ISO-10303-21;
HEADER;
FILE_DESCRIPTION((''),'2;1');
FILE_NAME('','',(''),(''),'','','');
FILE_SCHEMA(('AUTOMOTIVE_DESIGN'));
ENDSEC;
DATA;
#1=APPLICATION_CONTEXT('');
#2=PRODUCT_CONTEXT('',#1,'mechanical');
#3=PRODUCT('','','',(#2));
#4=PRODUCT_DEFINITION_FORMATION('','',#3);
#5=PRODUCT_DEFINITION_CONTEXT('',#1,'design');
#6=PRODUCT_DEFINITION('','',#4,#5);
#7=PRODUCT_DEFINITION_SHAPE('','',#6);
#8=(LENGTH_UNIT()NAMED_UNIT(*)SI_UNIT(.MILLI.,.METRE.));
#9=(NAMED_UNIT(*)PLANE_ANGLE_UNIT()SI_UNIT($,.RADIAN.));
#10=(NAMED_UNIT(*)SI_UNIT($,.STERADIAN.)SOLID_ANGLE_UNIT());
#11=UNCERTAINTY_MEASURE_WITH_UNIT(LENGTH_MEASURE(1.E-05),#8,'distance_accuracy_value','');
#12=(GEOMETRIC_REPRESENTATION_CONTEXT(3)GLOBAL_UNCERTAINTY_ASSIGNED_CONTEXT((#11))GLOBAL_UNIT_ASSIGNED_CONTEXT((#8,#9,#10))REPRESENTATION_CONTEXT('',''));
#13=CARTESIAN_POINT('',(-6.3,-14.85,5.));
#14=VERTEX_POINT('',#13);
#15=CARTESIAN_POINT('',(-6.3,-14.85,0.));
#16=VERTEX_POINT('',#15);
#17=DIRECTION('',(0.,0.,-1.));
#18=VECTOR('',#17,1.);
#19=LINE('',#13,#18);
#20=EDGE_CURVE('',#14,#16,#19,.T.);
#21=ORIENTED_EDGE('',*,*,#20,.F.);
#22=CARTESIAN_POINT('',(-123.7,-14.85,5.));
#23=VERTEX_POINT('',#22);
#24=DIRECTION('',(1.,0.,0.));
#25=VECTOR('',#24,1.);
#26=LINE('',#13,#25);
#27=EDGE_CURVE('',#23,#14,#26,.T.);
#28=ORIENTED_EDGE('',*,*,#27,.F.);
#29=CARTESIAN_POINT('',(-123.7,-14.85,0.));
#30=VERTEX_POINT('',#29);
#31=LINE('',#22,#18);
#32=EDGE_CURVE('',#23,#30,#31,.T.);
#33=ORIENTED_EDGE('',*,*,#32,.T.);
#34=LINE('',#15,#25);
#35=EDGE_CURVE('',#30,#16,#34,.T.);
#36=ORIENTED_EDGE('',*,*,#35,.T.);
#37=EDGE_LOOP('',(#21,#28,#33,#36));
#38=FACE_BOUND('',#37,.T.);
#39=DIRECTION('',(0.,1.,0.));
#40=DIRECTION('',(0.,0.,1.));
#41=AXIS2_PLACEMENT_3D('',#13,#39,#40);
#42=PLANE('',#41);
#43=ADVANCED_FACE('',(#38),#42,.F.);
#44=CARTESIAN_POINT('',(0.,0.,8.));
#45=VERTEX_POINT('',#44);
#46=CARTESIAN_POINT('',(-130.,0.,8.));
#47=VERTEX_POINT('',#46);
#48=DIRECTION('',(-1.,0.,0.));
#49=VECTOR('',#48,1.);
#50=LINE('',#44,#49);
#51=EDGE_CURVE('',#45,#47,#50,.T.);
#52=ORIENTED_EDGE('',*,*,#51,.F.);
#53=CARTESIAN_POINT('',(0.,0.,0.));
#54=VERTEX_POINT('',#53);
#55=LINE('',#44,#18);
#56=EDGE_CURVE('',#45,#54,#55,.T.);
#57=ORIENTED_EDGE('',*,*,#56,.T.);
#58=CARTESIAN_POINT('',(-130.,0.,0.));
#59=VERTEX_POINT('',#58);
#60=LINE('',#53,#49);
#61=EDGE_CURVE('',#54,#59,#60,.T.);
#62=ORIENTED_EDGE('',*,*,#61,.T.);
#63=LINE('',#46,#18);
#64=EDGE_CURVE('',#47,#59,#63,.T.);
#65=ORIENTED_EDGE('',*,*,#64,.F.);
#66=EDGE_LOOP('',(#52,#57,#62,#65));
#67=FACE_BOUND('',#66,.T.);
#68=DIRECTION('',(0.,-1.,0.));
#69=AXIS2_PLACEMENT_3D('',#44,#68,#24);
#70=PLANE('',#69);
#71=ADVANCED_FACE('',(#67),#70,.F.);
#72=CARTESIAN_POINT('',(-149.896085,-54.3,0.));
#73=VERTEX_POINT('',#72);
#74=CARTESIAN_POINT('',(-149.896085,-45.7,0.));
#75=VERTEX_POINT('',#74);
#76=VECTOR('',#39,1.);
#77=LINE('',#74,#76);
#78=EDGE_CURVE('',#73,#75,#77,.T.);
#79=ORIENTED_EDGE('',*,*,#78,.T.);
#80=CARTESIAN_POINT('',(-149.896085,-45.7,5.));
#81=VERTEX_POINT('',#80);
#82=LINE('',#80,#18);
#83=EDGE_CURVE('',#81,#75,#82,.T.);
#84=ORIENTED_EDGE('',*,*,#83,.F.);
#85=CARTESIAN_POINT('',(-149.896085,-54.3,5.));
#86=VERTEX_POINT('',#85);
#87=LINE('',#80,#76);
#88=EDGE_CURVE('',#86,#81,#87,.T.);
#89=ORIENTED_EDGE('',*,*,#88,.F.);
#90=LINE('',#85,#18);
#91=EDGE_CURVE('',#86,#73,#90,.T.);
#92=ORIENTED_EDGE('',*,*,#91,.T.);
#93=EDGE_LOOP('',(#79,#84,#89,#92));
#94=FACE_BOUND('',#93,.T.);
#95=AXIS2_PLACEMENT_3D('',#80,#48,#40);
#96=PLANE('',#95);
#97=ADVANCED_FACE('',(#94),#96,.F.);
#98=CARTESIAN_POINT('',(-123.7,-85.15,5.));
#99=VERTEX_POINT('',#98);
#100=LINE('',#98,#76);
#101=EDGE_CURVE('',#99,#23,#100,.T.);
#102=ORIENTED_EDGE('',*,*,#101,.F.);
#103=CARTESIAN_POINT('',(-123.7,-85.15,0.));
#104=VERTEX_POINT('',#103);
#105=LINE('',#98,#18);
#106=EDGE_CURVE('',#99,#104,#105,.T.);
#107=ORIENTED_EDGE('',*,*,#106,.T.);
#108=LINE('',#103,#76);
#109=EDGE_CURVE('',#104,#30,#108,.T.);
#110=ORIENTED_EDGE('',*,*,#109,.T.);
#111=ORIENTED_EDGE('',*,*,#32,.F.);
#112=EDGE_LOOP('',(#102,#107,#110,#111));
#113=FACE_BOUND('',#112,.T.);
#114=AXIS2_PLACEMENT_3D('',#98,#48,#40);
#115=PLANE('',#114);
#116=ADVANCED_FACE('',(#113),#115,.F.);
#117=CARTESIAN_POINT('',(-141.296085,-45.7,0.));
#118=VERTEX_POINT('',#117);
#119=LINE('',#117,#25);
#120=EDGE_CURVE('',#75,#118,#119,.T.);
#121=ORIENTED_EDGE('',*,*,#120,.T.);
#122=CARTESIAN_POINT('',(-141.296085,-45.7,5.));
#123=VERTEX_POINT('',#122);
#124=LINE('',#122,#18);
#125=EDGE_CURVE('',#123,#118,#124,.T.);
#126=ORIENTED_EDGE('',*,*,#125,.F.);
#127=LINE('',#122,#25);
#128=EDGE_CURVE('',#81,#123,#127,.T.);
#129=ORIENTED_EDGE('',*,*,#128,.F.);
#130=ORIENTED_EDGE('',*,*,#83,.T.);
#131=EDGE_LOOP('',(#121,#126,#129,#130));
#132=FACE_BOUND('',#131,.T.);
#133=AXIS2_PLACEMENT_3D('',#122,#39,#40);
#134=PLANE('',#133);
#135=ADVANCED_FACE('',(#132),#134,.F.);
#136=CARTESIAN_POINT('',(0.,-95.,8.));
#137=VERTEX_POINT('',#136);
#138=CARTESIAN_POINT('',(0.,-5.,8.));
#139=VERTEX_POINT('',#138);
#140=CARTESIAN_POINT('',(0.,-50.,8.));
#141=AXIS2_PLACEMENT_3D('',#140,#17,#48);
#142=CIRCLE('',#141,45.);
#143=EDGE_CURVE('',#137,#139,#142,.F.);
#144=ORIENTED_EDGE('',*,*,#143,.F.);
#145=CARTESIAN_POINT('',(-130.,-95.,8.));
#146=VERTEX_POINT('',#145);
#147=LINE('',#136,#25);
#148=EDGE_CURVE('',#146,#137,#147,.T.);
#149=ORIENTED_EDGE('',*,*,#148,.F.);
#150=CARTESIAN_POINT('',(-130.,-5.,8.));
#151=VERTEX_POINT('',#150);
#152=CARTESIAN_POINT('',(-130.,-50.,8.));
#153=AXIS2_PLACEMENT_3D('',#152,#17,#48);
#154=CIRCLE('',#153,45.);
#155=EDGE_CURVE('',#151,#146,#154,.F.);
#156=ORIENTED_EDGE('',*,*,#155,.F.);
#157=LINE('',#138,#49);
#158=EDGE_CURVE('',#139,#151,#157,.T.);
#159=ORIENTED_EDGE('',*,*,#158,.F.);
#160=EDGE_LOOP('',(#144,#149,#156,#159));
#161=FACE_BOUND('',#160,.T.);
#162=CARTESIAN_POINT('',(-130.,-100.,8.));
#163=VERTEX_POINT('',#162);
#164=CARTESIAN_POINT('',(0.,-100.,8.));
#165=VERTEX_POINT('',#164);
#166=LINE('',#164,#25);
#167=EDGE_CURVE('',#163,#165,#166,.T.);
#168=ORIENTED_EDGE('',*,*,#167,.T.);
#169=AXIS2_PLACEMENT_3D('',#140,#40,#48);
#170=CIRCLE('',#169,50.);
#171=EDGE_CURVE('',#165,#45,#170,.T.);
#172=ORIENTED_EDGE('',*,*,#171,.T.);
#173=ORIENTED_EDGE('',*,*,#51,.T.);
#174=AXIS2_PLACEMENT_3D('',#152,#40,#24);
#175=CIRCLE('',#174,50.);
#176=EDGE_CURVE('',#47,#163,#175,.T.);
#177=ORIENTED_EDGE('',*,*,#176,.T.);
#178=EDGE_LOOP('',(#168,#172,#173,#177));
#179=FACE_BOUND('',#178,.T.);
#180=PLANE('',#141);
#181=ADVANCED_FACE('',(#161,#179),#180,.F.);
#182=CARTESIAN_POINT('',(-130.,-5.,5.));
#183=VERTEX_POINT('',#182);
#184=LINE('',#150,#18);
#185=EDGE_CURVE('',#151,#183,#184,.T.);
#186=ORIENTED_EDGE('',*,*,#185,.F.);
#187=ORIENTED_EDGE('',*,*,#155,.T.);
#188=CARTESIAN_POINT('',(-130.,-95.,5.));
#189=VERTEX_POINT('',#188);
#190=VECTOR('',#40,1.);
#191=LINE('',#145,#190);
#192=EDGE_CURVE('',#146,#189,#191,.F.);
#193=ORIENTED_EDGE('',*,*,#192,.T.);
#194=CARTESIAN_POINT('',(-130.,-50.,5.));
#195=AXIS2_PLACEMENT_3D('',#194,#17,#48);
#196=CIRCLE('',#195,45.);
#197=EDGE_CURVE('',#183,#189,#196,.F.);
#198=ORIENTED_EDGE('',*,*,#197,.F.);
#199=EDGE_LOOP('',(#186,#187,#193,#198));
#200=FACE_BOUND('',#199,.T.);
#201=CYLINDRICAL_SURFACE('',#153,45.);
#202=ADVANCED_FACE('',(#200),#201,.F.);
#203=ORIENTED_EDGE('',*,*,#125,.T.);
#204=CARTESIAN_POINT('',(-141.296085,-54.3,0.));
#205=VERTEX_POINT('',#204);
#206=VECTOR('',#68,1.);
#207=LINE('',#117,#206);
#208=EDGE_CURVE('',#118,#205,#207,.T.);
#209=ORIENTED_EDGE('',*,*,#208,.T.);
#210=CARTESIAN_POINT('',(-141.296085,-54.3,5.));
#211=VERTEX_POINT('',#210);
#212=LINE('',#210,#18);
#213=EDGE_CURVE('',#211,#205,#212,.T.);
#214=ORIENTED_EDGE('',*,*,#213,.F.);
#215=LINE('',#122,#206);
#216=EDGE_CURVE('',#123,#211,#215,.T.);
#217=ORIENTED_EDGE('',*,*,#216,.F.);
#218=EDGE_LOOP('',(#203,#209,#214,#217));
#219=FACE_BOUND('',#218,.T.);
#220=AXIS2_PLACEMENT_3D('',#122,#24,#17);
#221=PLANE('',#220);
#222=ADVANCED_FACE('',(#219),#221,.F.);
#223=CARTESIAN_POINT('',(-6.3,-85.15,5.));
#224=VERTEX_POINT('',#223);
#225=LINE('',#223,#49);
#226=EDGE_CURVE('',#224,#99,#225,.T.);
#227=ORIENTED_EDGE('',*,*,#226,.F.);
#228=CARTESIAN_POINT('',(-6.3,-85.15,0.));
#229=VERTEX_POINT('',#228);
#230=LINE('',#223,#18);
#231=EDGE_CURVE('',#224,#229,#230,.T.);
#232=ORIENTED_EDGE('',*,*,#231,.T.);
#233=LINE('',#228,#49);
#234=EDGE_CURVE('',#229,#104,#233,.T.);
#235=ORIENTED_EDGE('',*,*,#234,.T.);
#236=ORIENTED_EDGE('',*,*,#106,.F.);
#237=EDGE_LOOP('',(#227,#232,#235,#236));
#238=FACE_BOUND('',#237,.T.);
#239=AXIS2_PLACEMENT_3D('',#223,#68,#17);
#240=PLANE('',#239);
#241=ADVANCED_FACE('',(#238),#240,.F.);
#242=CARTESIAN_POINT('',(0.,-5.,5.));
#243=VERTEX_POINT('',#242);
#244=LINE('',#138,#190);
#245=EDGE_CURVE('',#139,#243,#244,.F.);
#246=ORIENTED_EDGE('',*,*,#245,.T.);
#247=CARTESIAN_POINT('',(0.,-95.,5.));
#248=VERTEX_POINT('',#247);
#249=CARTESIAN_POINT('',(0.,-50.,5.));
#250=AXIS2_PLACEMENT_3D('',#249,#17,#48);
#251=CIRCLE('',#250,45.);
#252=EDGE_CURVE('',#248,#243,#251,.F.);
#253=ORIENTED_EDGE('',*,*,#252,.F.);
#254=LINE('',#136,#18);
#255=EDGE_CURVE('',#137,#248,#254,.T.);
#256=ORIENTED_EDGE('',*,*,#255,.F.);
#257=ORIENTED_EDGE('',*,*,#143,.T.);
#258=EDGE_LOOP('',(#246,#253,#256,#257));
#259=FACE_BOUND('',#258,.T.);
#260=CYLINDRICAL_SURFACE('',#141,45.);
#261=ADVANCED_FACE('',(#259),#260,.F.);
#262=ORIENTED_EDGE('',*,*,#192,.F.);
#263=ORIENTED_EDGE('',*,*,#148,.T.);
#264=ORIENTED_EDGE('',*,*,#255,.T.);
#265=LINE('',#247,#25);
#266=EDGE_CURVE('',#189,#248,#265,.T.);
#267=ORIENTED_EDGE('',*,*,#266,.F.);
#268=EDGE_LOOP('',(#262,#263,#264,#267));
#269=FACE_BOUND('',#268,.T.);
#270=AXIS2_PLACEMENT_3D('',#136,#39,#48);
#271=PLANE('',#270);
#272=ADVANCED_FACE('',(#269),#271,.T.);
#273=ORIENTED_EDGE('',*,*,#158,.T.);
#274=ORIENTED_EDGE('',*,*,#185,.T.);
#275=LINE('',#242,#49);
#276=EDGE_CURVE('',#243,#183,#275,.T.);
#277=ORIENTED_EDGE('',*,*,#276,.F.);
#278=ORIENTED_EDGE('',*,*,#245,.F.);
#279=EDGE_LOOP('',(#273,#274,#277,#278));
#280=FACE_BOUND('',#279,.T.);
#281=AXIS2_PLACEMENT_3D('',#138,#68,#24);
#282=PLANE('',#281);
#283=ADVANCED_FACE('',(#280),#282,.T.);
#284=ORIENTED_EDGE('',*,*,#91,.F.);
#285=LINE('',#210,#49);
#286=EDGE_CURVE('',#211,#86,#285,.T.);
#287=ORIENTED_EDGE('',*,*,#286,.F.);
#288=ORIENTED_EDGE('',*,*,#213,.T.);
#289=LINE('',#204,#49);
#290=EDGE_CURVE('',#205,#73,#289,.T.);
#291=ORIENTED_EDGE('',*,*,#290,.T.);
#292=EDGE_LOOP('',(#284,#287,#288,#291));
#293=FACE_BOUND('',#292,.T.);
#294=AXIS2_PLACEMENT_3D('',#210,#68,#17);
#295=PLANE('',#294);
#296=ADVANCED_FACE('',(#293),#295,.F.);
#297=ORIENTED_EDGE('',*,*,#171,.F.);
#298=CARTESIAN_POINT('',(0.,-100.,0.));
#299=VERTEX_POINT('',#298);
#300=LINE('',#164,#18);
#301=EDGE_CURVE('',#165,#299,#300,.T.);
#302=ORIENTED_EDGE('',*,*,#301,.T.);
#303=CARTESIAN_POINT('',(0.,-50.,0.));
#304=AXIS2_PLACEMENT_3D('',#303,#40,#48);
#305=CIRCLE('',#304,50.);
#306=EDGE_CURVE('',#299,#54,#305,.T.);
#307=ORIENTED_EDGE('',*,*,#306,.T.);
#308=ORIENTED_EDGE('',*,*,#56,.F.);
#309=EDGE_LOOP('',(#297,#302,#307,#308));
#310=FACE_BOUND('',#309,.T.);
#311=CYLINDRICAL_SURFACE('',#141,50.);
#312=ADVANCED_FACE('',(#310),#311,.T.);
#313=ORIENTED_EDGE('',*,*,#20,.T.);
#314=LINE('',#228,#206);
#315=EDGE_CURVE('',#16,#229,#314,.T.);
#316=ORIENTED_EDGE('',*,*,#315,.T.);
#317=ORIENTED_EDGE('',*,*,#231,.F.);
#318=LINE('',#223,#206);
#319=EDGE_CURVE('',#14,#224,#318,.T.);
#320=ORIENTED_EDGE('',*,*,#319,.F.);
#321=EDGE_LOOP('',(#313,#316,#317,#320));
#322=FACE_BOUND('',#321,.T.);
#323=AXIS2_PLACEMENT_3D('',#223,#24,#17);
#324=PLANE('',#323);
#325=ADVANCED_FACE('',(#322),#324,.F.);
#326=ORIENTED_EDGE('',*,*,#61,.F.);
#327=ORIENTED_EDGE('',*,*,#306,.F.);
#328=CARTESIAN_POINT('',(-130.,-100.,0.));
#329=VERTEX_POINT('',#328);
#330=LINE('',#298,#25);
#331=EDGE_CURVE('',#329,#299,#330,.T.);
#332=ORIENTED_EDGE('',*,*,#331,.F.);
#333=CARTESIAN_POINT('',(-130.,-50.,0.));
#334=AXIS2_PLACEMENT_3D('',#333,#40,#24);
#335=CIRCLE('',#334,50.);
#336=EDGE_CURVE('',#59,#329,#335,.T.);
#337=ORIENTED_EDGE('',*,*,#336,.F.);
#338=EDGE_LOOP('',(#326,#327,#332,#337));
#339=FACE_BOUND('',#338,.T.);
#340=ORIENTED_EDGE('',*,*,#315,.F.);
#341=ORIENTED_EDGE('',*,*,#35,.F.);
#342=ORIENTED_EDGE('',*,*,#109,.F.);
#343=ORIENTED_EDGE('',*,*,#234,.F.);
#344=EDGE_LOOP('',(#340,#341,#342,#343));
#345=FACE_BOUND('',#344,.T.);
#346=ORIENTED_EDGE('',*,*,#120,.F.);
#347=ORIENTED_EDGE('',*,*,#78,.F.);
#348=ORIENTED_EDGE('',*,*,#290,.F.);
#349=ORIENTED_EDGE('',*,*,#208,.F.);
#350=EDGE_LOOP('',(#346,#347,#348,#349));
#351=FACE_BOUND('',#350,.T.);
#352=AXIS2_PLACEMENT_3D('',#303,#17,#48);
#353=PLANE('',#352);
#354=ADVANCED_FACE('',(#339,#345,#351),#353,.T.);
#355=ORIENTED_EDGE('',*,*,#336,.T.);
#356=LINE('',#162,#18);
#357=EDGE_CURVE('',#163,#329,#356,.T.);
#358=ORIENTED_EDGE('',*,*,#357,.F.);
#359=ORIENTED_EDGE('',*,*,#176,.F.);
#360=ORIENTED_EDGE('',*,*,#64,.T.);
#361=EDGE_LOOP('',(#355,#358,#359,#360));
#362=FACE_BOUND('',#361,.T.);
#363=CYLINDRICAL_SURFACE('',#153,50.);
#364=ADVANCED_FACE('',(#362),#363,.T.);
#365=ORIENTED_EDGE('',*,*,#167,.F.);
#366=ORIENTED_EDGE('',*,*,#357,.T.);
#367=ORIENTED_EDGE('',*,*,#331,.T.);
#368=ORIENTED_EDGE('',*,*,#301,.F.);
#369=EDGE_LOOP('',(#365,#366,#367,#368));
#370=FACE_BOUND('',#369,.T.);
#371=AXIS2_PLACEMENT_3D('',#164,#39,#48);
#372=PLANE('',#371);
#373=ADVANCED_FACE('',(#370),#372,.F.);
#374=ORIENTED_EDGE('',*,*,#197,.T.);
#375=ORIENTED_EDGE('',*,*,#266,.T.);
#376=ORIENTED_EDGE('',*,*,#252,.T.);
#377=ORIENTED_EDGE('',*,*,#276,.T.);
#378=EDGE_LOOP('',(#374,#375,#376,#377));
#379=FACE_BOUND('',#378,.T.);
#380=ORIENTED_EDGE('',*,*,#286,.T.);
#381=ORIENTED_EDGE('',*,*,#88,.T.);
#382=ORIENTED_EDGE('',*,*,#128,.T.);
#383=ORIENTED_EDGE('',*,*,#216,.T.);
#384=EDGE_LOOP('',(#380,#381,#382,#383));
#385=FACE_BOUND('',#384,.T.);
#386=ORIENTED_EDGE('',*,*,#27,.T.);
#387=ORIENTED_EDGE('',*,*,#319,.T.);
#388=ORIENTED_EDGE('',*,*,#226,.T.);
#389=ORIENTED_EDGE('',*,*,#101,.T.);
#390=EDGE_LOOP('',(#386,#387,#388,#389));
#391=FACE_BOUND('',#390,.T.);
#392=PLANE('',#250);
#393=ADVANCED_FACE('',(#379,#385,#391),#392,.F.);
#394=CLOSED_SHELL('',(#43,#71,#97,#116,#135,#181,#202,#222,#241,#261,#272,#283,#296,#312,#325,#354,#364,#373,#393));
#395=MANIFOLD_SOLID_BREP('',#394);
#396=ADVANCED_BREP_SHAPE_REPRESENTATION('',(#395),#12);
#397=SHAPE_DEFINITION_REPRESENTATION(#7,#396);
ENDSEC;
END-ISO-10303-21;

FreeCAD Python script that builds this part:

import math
import FreeCAD as App
import Part
import Sketcher
from FreeCAD import Vector


def faces_at(feature, points):
    """Names of the faces that lie closest to the given points."""
    faces = feature.Shape.Faces
    near = lambda p: min(range(len(faces)), key=lambda i: faces[i].distToShape(Part.Vertex(*p))[0])
    return sorted({f"Face{near(p) + 1}" for p in points})

doc = App.newDocument("Part")
body = doc.addObject("PartDesign::Body", "Body")

sketch1 = doc.addObject("Sketcher::SketchObject", "Sketch")
body.addObject(sketch1)
sketch1.AttachmentSupport = (doc.XY_Plane, [""])
sketch1.MapMode = "FlatFace"
sketch1.addGeometry([
    Part.LineSegment(Vector(0, 0, 0), Vector(-130, 0, 0)),
    Part.ArcOfCircle(Part.Circle(Vector(-130, -50, 0), Vector(0, 0, 1), 50), math.radians(90), math.radians(270)),
    Part.LineSegment(Vector(-130, -100, 0), Vector(0, -100, 0)),
    Part.ArcOfCircle(Part.Circle(Vector(0, -50, 0), Vector(0, 0, 1), 50), math.radians(-90), math.radians(90)),
], False)
sketch1.addConstraint([
    Sketcher.Constraint("Tangent", 0, 2, 1, 1),
    Sketcher.Constraint("Tangent", 1, 2, 2, 1),
    Sketcher.Constraint("Tangent", 2, 2, 3, 1),
    Sketcher.Constraint("Tangent", 3, 2, 0, 1),
    Sketcher.Constraint("Horizontal", 0),
    Sketcher.Constraint("Horizontal", 2),
    Sketcher.Constraint("Coincident", 3, 2, -1, 1),
    Sketcher.Constraint("Radius", 1, 50.0),
    Sketcher.Constraint("DistanceX", 0, 2, 0, 1, 130.0),
])
pad1 = doc.addObject("PartDesign::Pad", "Pad")
body.addObject(pad1)
pad1.Profile = sketch1
pad1.Length = 8
doc.recompute()

thickness = doc.addObject("PartDesign::Thickness", "Thickness")
body.addObject(thickness)
thickness.Base = (pad1, faces_at(pad1, [(-65, -50, 8)]))
thickness.Value = 5
thickness.Reversed = True
thickness.Join = "Intersection"

sketch2 = doc.addObject("Sketcher::SketchObject", "Sketch001")
body.addObject(sketch2)
sketch2.AttachmentSupport = (doc.XY_Plane, [""])
sketch2.MapMode = "FlatFace"
sketch2.addGeometry([
    Part.LineSegment(Vector(-6, -15, 0), Vector(-6, -85, 0)),
    Part.LineSegment(Vector(-6, -85, 0), Vector(-124, -85, 0)),
    Part.LineSegment(Vector(-124, -85, 0), Vector(-124, -15, 0)),
    Part.LineSegment(Vector(-124, -15, 0), Vector(-6, -15, 0)),
    Part.LineSegment(Vector(-141, -46, 0), Vector(-141, -54, 0)),
    Part.LineSegment(Vector(-141, -54, 0), Vector(-150, -54, 0)),
    Part.LineSegment(Vector(-150, -54, 0), Vector(-150, -46, 0)),
    Part.LineSegment(Vector(-150, -46, 0), Vector(-141, -46, 0)),
], False)
sketch2.addConstraint([
    Sketcher.Constraint("Coincident", 0, 2, 1, 1),
    Sketcher.Constraint("Coincident", 1, 2, 2, 1),
    Sketcher.Constraint("Coincident", 2, 2, 3, 1),
    Sketcher.Constraint("Coincident", 3, 2, 0, 1),
    Sketcher.Constraint("Coincident", 4, 2, 5, 1),
    Sketcher.Constraint("Coincident", 5, 2, 6, 1),
    Sketcher.Constraint("Coincident", 6, 2, 7, 1),
    Sketcher.Constraint("Coincident", 7, 2, 4, 1),
    Sketcher.Constraint("Vertical", 0),
    Sketcher.Constraint("Horizontal", 1),
    Sketcher.Constraint("Vertical", 2),
    Sketcher.Constraint("Horizontal", 3),
    Sketcher.Constraint("Vertical", 4),
    Sketcher.Constraint("Horizontal", 5),
    Sketcher.Constraint("Vertical", 6),
    Sketcher.Constraint("Horizontal", 7),
    Sketcher.Constraint("Equal", 7, 4),
    Sketcher.Constraint("DistanceX", 1, 2, 1, 1, 117.4),
    Sketcher.Constraint("DistanceX", 5, 2, 5, 1, 8.6),
    Sketcher.Constraint("DistanceY", 0, 2, 0, 1, 70.3),
    Sketcher.Constraint("DistanceX", 0, 2, -1, 1, 6.3),
    Sketcher.Constraint("DistanceY", 4, 2, -1, 1, 54.3),
    Sketcher.Constraint("DistanceY", 0, 2, -1, 1, 85.15),
    Sketcher.Constraint("DistanceX", 4, 2, -1, 1, 141.296085),
])
pocket1 = doc.addObject("PartDesign::Pocket", "Pocket")
body.addObject(pocket1)
pocket1.Profile = sketch2
pocket1.Length = 5
pocket1.Reversed = True

doc.recompute()
